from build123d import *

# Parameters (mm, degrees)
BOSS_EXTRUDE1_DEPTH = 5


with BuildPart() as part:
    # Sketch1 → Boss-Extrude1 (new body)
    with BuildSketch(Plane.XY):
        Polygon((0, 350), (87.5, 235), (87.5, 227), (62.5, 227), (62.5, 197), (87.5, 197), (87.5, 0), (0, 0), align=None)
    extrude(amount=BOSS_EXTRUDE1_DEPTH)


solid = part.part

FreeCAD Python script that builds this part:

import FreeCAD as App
import Part
import Sketcher
Q = App.Units.Quantity


def add_polygon(sketch, points):
    """Adds a closed chain of lines whose ends are joined by coincident constraints."""
    first, n = sketch.GeometryCount, len(points)
    for a, b in zip(points, points[1:] + points[:1]):
        sketch.addGeometry(Part.LineSegment(App.Vector(*a, 0), App.Vector(*b, 0)), False)
    for i in range(n):
        sketch.addConstraint(Sketcher.Constraint("Coincident", first + i, 2, first + (i + 1) % n, 1))

doc = App.newDocument("Part")
params = doc.addObject("Spreadsheet::Sheet", "Params")
for row, (alias, value) in enumerate([
    ("sketch1_width", "25 mm"),
    ("sketch1_height", "350 mm"),
    ("sketch1_height2", "197 mm"),
    ("sketch1_height3", "30 mm"),
    ("sketch1_height4", "8 mm"),
    ("pad1_length", "5 mm"),
], start=1):
    params.set(f"A{row}", alias)
    params.set(f"B{row}", "=" + value)
    params.setAlias(f"B{row}", alias)

body = doc.addObject("PartDesign::Body", "Body")

# Sketch on XY plane
sketch1 = body.newObject("Sketcher::SketchObject", "Sketch")
sketch1.AttachmentSupport = (doc.getObject("XY_Plane"), [""])
sketch1.MapMode = "FlatFace"
add_polygon(sketch1, [(87.5, 235), (0, 350), (0, 0), (87.5, 0), (87.5, 197), (62.5, 197), (62.5, 227), (87.5, 227)])  # lines 0-7
sketch1.addConstraint([
    Sketcher.Constraint("Vertical", 1),
    Sketcher.Constraint("Horizontal", 2),
    Sketcher.Constraint("Vertical", 3),
    Sketcher.Constraint("Horizontal", 4),
    Sketcher.Constraint("Vertical", 5),
    Sketcher.Constraint("Horizontal", 6),
    Sketcher.Constraint("Vertical", 7),
    Sketcher.Constraint("Coincident", 1, 2, -1, 1),
    Sketcher.Constraint("Vertical", 3, 2, 6, 2),
    Sketcher.Constraint("DistanceX", 4, 2, 4, 1, Q("25 mm")),
    Sketcher.Constraint("DistanceY", 1, 2, 1, 1, Q("350 mm")),
    Sketcher.Constraint("DistanceY", 3, 1, 3, 2, Q("197 mm")),
    Sketcher.Constraint("DistanceY", 5, 1, 5, 2, Q("30 mm")),
    Sketcher.Constraint("DistanceY", 7, 1, 7, 2, Q("8 mm")),
    Sketcher.Constraint("DistanceX", 2, 1, 2, 2, Q("87.5 mm")),
])
sketch1.setExpression("Constraints[17]", "Params.sketch1_width")
sketch1.setExpression("Constraints[18]", "Params.sketch1_height")
sketch1.setExpression("Constraints[19]", "Params.sketch1_height2")
sketch1.setExpression("Constraints[20]", "Params.sketch1_height3")
sketch1.setExpression("Constraints[21]", "Params.sketch1_height4")
pad1 = body.newObject("PartDesign::Pad", "Pad")
pad1.Profile = sketch1
pad1.setExpression("Length", "Params.pad1_length")

doc.recompute()
